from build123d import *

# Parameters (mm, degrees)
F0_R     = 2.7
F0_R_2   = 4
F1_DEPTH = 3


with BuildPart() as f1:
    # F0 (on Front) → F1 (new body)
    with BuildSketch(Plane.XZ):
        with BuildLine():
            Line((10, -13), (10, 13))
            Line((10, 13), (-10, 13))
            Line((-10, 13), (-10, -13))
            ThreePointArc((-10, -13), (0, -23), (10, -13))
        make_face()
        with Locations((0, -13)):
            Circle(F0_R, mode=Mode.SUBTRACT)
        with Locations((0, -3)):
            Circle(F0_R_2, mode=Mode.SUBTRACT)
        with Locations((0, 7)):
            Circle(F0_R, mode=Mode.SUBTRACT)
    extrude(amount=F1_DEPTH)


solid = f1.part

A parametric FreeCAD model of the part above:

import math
import FreeCAD as App
import Part
import Sketcher
from FreeCAD import Vector

doc = App.newDocument("Part")
params = doc.addObject("Spreadsheet::Sheet", "Params")
for row, (alias, value) in enumerate([
    ("sketch1_diameter", "8 mm"),
    ("sketch1_radius", "10 mm"),
    ("sketch1_diameter2", "5.4 mm"),
    ("sketch1_height", "26 mm"),
    ("pad1_length", "3 mm"),
], start=1):
    params.set(f"A{row}", alias)
    params.set(f"B{row}", "=" + value)
    params.setAlias(f"B{row}", alias)

body = doc.addObject("PartDesign::Body", "Body")

sketch1 = body.newObject("Sketcher::SketchObject", "Sketch")
sketch1.AttachmentSupport = (doc.getObject("XZ_Plane"), [""])
sketch1.MapMode = "FlatFace"
sketch1.addGeometry(Part.LineSegment(Vector(10, -13, 0), Vector(10, 13, 0)), False)
sketch1.addGeometry(Part.LineSegment(Vector(10, 13, 0), Vector(-10, 13, 0)), False)
sketch1.addGeometry(Part.LineSegment(Vector(-10, 13, 0), Vector(-10, -13, 0)), False)
sketch1.addGeometry(Part.ArcOfCircle(Part.Circle(Vector(0, -13, 0), Vector(0, 0, 1), 10), math.radians(180), math.radians(360)), False)
sketch1.addGeometry(Part.Circle(Vector(0, -13, 0), Vector(0, 0, 1), 2.7), False)
sketch1.addGeometry(Part.Circle(Vector(0, -3, 0), Vector(0, 0, 1), 4), False)
sketch1.addGeometry(Part.Circle(Vector(0, 7, 0), Vector(0, 0, 1), 2.7), False)
sketch1.addConstraint(Sketcher.Constraint("Coincident", 0, 2, 1, 1))
sketch1.addConstraint(Sketcher.Constraint("Coincident", 1, 2, 2, 1))
sketch1.addConstraint(Sketcher.Constraint("Tangent", 2, 2, 3, 1))
sketch1.addConstraint(Sketcher.Constraint("Tangent", 3, 2, 0, 1))
sketch1.addConstraint(Sketcher.Constraint("Vertical", 0))
sketch1.addConstraint(Sketcher.Constraint("Horizontal", 1))
sketch1.addConstraint(Sketcher.Constraint("Vertical", 2))
sketch1.addConstraint(Sketcher.Constraint("Coincident", 4, 3, 3, 3))
sketch1.addConstraint(Sketcher.Constraint("Equal", 4, 6))
sketch1.addConstraint(Sketcher.Constraint("Symmetric", 0, 2, 2, 2, -1, 1))
sketch1.addConstraint(Sketcher.Constraint("PointOnObject", 5, 3, -2))
sketch1.addConstraint(Sketcher.Constraint("PointOnObject", 6, 3, -2))
sketch1.addConstraint(Sketcher.Constraint("Diameter", 5, 8.0))
sketch1.addConstraint(Sketcher.Constraint("Radius", 3, 10.0))
sketch1.addConstraint(Sketcher.Constraint("Diameter", 4, 5.4))
sketch1.addConstraint(Sketcher.Constraint("DistanceY", 0, 1, 0, 2, 26.0))
sketch1.addConstraint(Sketcher.Constraint("DistanceY", 5, 3, -1, 1, 3.0))
sketch1.addConstraint(Sketcher.Constraint("DistanceY", -1, 1, 6, 3, 7.0))
sketch1.setExpression("Constraints[12]", "Params.sketch1_diameter")
sketch1.setExpression("Constraints[13]", "Params.sketch1_radius")
sketch1.setExpression("Constraints[14]", "Params.sketch1_diameter2")
sketch1.setExpression("Constraints[15]", "Params.sketch1_height")
pad1 = body.newObject("PartDesign::Pad", "Pad")
pad1.Profile = sketch1
pad1.setExpression("Length", "Params.pad1_length")

doc.recompute()
